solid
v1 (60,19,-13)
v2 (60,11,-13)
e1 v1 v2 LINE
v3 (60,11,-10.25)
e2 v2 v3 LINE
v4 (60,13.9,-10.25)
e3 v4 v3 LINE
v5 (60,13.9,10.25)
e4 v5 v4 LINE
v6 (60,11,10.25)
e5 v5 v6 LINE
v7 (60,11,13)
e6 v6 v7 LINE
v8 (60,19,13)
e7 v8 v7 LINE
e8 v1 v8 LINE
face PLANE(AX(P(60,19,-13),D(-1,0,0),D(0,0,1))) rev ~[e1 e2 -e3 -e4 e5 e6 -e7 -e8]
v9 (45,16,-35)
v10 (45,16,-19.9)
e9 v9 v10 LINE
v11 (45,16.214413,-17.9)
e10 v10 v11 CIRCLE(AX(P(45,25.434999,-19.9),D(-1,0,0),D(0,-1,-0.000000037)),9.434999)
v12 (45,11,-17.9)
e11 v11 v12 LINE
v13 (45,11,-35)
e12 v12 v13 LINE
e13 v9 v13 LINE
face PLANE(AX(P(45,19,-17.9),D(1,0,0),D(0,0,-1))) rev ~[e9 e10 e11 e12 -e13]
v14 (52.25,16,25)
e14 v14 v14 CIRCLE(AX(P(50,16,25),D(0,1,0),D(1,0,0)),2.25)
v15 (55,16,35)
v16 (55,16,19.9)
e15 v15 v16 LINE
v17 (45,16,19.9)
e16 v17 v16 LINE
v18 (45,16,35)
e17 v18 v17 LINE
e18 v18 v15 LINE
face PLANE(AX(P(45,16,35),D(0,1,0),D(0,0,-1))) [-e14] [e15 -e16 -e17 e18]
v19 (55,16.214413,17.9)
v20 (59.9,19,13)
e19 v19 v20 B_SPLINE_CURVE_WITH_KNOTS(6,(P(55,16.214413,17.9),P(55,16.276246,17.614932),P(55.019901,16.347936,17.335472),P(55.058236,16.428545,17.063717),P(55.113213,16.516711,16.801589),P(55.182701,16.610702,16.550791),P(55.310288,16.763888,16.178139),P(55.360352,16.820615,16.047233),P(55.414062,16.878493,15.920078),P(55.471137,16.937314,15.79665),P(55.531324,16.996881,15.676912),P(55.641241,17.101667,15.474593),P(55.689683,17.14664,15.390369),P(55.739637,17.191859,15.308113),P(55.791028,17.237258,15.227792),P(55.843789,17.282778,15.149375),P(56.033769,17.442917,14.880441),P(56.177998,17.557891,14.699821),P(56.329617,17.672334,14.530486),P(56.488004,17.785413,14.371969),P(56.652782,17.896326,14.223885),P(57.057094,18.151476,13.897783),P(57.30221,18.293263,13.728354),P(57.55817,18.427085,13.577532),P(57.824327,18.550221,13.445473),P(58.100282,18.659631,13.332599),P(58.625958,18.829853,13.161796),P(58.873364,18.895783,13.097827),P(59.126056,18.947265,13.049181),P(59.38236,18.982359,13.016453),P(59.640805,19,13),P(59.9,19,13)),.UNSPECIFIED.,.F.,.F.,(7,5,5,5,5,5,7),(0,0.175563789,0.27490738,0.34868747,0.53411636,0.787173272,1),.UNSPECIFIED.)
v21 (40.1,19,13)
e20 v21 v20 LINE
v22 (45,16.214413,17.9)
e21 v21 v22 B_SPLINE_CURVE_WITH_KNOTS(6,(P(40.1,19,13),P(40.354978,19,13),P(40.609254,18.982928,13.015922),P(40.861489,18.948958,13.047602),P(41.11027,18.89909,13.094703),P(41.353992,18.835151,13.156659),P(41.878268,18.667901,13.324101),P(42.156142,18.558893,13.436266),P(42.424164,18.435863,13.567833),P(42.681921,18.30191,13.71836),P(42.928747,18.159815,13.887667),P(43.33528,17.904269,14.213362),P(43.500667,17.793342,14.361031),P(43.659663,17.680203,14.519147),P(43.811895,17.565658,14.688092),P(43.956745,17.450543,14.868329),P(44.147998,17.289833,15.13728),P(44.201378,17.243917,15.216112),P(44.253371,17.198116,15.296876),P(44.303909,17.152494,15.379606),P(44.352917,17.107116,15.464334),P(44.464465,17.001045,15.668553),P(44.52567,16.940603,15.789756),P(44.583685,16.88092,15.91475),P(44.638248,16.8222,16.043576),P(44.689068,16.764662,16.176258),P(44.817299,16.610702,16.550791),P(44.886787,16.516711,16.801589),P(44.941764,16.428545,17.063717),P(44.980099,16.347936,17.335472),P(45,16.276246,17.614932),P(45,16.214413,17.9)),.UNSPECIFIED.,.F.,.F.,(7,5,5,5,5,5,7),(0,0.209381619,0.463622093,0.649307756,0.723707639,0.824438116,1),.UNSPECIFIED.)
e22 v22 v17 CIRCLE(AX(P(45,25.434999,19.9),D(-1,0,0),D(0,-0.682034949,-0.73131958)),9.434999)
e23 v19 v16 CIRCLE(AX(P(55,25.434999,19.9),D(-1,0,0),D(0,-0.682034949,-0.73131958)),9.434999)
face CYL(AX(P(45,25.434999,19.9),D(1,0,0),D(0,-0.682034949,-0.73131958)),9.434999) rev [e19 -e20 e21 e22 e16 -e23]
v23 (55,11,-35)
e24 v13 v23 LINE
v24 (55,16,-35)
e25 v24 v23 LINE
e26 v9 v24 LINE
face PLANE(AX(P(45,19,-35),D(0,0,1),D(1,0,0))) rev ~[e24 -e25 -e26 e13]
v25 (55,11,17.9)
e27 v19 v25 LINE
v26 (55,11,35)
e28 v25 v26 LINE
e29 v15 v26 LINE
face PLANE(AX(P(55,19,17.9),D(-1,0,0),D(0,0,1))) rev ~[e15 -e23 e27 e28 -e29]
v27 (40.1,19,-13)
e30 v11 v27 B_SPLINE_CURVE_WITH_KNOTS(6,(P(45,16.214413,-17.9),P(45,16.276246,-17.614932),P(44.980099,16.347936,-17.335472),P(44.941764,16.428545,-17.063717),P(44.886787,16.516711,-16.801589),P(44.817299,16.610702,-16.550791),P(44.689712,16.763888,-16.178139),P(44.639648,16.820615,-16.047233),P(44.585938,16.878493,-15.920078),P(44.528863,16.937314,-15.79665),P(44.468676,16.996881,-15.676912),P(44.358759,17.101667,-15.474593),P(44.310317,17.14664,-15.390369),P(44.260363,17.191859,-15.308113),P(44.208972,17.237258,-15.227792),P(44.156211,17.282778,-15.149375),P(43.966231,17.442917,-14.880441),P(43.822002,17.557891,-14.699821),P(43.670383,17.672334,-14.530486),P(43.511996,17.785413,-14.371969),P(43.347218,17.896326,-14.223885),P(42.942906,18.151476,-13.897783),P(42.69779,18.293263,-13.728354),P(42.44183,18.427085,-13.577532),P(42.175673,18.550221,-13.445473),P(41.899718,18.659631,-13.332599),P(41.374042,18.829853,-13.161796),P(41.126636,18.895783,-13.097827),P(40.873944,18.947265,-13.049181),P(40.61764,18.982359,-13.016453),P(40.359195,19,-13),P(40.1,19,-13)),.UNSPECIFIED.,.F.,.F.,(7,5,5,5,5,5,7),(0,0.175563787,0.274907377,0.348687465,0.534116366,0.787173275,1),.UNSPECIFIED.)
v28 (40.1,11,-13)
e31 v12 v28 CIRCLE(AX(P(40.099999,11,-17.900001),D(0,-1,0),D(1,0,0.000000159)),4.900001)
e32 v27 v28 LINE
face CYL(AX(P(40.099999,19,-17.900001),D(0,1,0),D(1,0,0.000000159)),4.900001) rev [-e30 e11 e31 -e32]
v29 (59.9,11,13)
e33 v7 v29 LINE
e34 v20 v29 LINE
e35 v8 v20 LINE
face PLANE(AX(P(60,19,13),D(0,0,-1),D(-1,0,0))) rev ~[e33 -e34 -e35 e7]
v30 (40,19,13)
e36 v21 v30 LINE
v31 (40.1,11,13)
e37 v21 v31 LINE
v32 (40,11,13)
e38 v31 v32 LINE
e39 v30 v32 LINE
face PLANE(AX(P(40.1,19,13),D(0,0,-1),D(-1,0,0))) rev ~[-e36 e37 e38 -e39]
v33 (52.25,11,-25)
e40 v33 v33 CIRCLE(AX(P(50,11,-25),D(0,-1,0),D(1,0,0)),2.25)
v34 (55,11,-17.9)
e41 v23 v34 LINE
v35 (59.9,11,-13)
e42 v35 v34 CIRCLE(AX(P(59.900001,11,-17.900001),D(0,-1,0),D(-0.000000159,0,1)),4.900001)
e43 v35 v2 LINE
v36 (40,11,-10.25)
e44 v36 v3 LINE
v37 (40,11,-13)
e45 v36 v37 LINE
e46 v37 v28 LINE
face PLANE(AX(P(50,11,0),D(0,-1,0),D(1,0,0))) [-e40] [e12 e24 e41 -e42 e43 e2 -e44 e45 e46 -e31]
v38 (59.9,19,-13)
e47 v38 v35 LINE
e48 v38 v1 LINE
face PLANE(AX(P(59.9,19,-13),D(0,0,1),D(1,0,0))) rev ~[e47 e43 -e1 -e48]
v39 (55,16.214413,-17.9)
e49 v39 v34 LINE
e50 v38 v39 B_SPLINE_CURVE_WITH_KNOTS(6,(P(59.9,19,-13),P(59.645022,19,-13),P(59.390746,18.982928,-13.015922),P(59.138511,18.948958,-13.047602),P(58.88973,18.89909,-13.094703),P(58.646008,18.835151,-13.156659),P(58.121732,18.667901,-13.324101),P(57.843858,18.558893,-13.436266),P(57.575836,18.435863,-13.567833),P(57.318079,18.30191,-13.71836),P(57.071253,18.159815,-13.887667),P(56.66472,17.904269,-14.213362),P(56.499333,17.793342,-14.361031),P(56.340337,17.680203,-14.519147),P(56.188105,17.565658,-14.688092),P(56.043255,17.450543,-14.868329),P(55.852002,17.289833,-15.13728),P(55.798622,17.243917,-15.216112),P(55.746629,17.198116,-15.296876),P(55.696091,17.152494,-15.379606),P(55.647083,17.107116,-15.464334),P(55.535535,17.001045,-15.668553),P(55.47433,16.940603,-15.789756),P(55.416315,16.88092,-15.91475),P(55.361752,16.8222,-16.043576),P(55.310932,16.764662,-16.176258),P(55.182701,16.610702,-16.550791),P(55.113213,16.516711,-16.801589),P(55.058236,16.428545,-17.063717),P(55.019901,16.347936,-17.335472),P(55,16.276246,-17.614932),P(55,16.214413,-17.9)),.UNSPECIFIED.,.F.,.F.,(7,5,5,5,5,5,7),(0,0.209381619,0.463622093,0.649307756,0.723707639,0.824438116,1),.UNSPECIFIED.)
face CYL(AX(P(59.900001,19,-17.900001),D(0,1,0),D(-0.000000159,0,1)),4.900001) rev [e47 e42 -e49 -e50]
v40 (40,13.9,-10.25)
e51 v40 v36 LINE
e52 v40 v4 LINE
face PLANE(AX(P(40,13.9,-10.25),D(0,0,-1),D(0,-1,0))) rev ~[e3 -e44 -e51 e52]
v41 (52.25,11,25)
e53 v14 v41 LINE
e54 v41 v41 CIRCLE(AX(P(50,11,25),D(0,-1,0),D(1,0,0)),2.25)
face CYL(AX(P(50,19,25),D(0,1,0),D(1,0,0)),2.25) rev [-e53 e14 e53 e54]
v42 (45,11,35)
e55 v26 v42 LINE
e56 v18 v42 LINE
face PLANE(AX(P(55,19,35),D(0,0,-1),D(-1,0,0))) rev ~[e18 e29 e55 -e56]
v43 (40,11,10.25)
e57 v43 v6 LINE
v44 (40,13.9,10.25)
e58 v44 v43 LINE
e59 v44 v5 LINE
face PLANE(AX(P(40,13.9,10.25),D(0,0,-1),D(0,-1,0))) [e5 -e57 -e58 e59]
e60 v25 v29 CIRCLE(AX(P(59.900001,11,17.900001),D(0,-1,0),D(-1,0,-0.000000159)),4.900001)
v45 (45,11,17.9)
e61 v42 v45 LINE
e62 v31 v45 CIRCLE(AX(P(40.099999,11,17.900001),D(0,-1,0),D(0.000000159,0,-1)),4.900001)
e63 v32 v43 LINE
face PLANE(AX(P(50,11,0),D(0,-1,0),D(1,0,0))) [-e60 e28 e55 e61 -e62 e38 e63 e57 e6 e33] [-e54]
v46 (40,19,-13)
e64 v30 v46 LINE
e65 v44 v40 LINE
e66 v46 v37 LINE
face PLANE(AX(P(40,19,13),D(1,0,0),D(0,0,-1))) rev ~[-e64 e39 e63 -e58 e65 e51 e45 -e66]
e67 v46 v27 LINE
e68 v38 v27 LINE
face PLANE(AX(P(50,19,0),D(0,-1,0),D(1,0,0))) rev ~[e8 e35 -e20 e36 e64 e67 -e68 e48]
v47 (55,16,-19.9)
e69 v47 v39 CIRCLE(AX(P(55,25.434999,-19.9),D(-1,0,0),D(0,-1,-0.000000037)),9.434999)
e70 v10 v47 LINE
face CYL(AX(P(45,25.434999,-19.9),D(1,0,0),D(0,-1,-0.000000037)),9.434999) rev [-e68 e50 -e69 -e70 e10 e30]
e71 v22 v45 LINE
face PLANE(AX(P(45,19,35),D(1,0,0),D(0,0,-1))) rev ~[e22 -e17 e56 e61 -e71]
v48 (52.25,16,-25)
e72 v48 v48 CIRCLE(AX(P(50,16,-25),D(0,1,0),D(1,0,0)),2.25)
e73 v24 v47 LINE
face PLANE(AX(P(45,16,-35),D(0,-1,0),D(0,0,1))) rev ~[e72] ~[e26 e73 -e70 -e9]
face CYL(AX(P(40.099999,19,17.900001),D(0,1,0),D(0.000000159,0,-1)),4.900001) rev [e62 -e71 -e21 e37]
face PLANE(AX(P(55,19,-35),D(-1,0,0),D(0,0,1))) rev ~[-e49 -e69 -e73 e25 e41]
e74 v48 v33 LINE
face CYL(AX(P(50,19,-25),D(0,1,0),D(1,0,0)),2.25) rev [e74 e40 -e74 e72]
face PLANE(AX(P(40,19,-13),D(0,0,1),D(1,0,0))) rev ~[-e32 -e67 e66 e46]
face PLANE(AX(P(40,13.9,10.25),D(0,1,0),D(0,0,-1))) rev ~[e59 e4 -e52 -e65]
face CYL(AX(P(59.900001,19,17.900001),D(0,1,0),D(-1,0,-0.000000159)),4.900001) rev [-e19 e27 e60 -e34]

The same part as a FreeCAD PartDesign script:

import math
import FreeCAD as App
import Part
import Sketcher
from FreeCAD import Vector
Q = App.Units.Quantity


def add_polygon(sketch, points):
    """Adds a closed chain of lines whose ends are joined by coincident constraints."""
    first, n = sketch.GeometryCount, len(points)
    for a, b in zip(points, points[1:] + points[:1]):
        sketch.addGeometry(Part.LineSegment(App.Vector(*a, 0), App.Vector(*b, 0)), False)
    for i in range(n):
        sketch.addConstraint(Sketcher.Constraint("Coincident", first + i, 2, first + (i + 1) % n, 1))

doc = App.newDocument("Part")
body = doc.addObject("PartDesign::Body", "Body")

# Sketch on XZ plane
sketch1 = body.newObject("Sketcher::SketchObject", "Sketch")
sketch1.AttachmentSupport = (doc.getObject("XZ_Plane"), [""])
sketch1.MapMode = "FlatFace"
sketch1.addGeometry([
    Part.LineSegment(Vector(40, -13, 0), Vector(40.1, -13, 0)),  # 0
    Part.ArcOfCircle(Part.Circle(Vector(40.099999, -17.900001, 0), Vector(0, 0, 1), 4.900001), math.radians(0.000009), math.radians(89.999991)),  # 1
    Part.LineSegment(Vector(45, -17.9, 0), Vector(45, -35, 0)),  # 2
    Part.LineSegment(Vector(45, -35, 0), Vector(55, -35, 0)),  # 3
    Part.LineSegment(Vector(55, -35, 0), Vector(55, -17.9, 0)),  # 4
    Part.ArcOfCircle(Part.Circle(Vector(59.900001, -17.900001, 0), Vector(0, 0, 1), 4.900001), math.radians(90.000009), math.radians(179.999991)),  # 5
    Part.LineSegment(Vector(59.9, -13, 0), Vector(60, -13, 0)),  # 6
    Part.LineSegment(Vector(60, -13, 0), Vector(60, 13, 0)),  # 7
    Part.LineSegment(Vector(60, 13, 0), Vector(59.9, 13, 0)),  # 8
    Part.ArcOfCircle(Part.Circle(Vector(59.900001, 17.900001, 0), Vector(0, 0, 1), 4.900001), math.radians(-179.999991), math.radians(-90.000009)),  # 9
    Part.LineSegment(Vector(55, 17.9, 0), Vector(55, 35, 0)),  # 10
    Part.LineSegment(Vector(55, 35, 0), Vector(45, 35, 0)),  # 11
    Part.LineSegment(Vector(45, 35, 0), Vector(45, 17.9, 0)),  # 12
    Part.ArcOfCircle(Part.Circle(Vector(40.099999, 17.900001, 0), Vector(0, 0, 1), 4.900001), math.radians(-89.999991), math.radians(-0.000009)),  # 13
    Part.LineSegment(Vector(40.1, 13, 0), Vector(40, 13, 0)),  # 14
    Part.LineSegment(Vector(40, 13, 0), Vector(40, -13, 0)),  # 15
    Part.Circle(Vector(50, -25, 0), Vector(0, 0, 1), 2.25),  # 16
    Part.Circle(Vector(50, 25, 0), Vector(0, 0, 1), 2.25),  # 17
], False)
sketch1.addConstraint([
    Sketcher.Constraint("Tangent", 0, 2, 1, 2),
    Sketcher.Constraint("Tangent", 1, 1, 2, 1),
    Sketcher.Constraint("Coincident", 2, 2, 3, 1),
    Sketcher.Constraint("Coincident", 3, 2, 4, 1),
    Sketcher.Constraint("Tangent", 4, 2, 5, 2),
    Sketcher.Constraint("Tangent", 5, 1, 6, 1),
    Sketcher.Constraint("Coincident", 6, 2, 7, 1),
    Sketcher.Constraint("Coincident", 7, 2, 8, 1),
    Sketcher.Constraint("Tangent", 8, 2, 9, 2),
    Sketcher.Constraint("Tangent", 9, 1, 10, 1),
    Sketcher.Constraint("Coincident", 10, 2, 11, 1),
    Sketcher.Constraint("Coincident", 11, 2, 12, 1),
    Sketcher.Constraint("Tangent", 12, 2, 13, 2),
    Sketcher.Constraint("Tangent", 13, 1, 14, 1),
    Sketcher.Constraint("Coincident", 14, 2, 15, 1),
    Sketcher.Constraint("Coincident", 15, 2, 0, 1),
    Sketcher.Constraint("Horizontal", 0),
    Sketcher.Constraint("Vertical", 2),
    Sketcher.Constraint("Horizontal", 3),
    Sketcher.Constraint("Vertical", 4),
    Sketcher.Constraint("Horizontal", 6),
    Sketcher.Constraint("Vertical", 7),
    Sketcher.Constraint("Horizontal", 8),
    Sketcher.Constraint("Vertical", 10),
    Sketcher.Constraint("Horizontal", 11),
    Sketcher.Constraint("Vertical", 12),
    Sketcher.Constraint("Horizontal", 14),
    Sketcher.Constraint("Vertical", 15),
    Sketcher.Constraint("Equal", 1, 5),
    Sketcher.Constraint("Equal", 5, 9),
    Sketcher.Constraint("Equal", 9, 13),
    Sketcher.Constraint("Equal", 16, 17),
    Sketcher.Constraint("Symmetric", 5, 3, 9, 3, -1),
    Sketcher.Constraint("Symmetric", 1, 3, 13, 3, -1),
    Sketcher.Constraint("Symmetric", 16, 3, 17, 3, -1),
    Sketcher.Constraint("Horizontal", 1, 3, 5, 3),
    Sketcher.Constraint("Equal", 0, 6),
    Sketcher.Constraint("Equal", 4, 10),
    Sketcher.Constraint("Diameter", 16, Q("4.5 mm")),
    Sketcher.Constraint("Radius", 1, Q("4.900001 mm")),
    Sketcher.Constraint("DistanceX", 3, 1, 3, 2, Q("10 mm")),
    Sketcher.Constraint("DistanceY", 7, 1, 7, 2, Q("26 mm")),
    Sketcher.Constraint("DistanceX", 0, 1, 0, 2, Q("0.1 mm")),
    Sketcher.Constraint("DistanceY", 2, 2, 2, 1, Q("17.1 mm")),
    Sketcher.Constraint("DistanceX", -1, 1, 16, 3, Q("50 mm")),
    Sketcher.Constraint("DistanceY", 16, 3, -1, 1, Q("25 mm")),
    Sketcher.Constraint("DistanceX", -1, 1, 1, 1, Q("45 mm")),
])
pad1 = body.newObject("PartDesign::Pad", "Pad")
pad1.Profile = sketch1
pad1.Length = 8

# Sketch on YZ plane
sketch2 = body.newObject("Sketcher::SketchObject", "Sketch001")
sketch2.AttachmentSupport = (doc.getObject("YZ_Plane"), [""])
sketch2.MapMode = "FlatFace"
sketch2.AttachmentOffset = App.Placement(Vector(0, 0, 40), App.Rotation())
add_polygon(sketch2, [(-8, 10.25), (-5.1, 10.25), (-5.1, -10.25), (-8, -10.25)])  # lines 0-3
sketch2.addConstraint([
    Sketcher.Constraint("Horizontal", 0),
    Sketcher.Constraint("Vertical", 1),
    Sketcher.Constraint("Horizontal", 2),
    Sketcher.Constraint("Vertical", 3),
    Sketcher.Constraint("DistanceX", 0, 1, 0, 2, Q("2.9 mm")),
    Sketcher.Constraint("DistanceY", 1, 2, 1, 1, Q("20.5 mm")),
    Sketcher.Constraint("DistanceX", 2, 2, -1, 1, Q("8 mm")),
    Sketcher.Constraint("DistanceY", -1, 1, 0, 2, Q("10.25 mm")),
])
pocket1 = body.newObject("PartDesign::Pocket", "Pocket")
pocket1.Profile = sketch2
pocket1.Length = 20
pocket1.Reversed = True

# Sketch on YZ plane
sketch3 = body.newObject("Sketcher::SketchObject", "Sketch002")
sketch3.AttachmentSupport = (doc.getObject("YZ_Plane"), [""])
sketch3.MapMode = "FlatFace"
sketch3.AttachmentOffset = App.Placement(Vector(0, 0, 45), App.Rotation())
sketch3.addGeometry([
    Part.LineSegment(Vector(-3, 19.9, 0), Vector(-3, 35, 0)),  # 0
    Part.LineSegment(Vector(-3, 35, 0), Vector(0, 35, 0)),  # 1
    Part.LineSegment(Vector(0, 35, 0), Vector(0, 13, 0)),  # 2
    Part.ArcOfCircle(Part.Circle(Vector(6.434999, 19.9, 0), Vector(0, 0, 1), 9.434999), math.radians(179.999998), math.radians(226.997133)),  # 3
    Part.LineSegment(Vector(0, -13, 0), Vector(0, -35, 0)),  # 4
    Part.LineSegment(Vector(0, -35, 0), Vector(-3, -35, 0)),  # 5
    Part.LineSegment(Vector(-3, -35, 0), Vector(-3, -19.9, 0)),  # 6
    Part.ArcOfCircle(Part.Circle(Vector(6.434999, -19.9, 0), Vector(0, 0, 1), 9.434999), math.radians(133.002867), math.radians(180.000002)),  # 7
], False)
sketch3.addConstraint([
    Sketcher.Constraint("Coincident", 0, 2, 1, 1),
    Sketcher.Constraint("Coincident", 1, 2, 2, 1),
    Sketcher.Constraint("Coincident", 2, 2, 3, 2),
    Sketcher.Constraint("Tangent", 3, 1, 0, 1),
    Sketcher.Constraint("Coincident", 4, 2, 5, 1),
    Sketcher.Constraint("Coincident", 5, 2, 6, 1),
    Sketcher.Constraint("Tangent", 6, 2, 7, 2),
    Sketcher.Constraint("Coincident", 7, 1, 4, 1),
    Sketcher.Constraint("Vertical", 0),
    Sketcher.Constraint("Horizontal", 1),
    Sketcher.Constraint("Vertical", 2),
    Sketcher.Constraint("Vertical", 4),
    Sketcher.Constraint("Horizontal", 5),
    Sketcher.Constraint("Vertical", 6),
    Sketcher.Constraint("Equal", 3, 7),
    Sketcher.Constraint("Symmetric", 1, 2, 4, 2, -1, 1),
    Sketcher.Constraint("Symmetric", 3, 3, 7, 3, -1),
    Sketcher.Constraint("PointOnObject", 1, 2, -2),
    Sketcher.Constraint("DistanceX", 1, 1, 1, 2, Q("3 mm")),
    Sketcher.Constraint("DistanceY", 2, 2, 2, 1, Q("22 mm")),
    Sketcher.Constraint("DistanceY", 0, 1, 0, 2, Q("15.1 mm")),
    Sketcher.Constraint("DistanceY", -1, 1, 0, 2, Q("35 mm")),
])
pocket2 = body.newObject("PartDesign::Pocket", "Pocket001")
pocket2.Profile = sketch3
pocket2.Type = "ThroughAll"
pocket2.Midplane = True
body2 = doc.addObject("PartDesign::Body", "Body001")
doc.recompute()

body.Placement = App.Placement(Vector(0, 19, 0), App.Rotation(Vector(0, 0, 1), 0))
boolean = body2.newObject("PartDesign::Boolean", "Boolean")
boolean.Type = "Fuse"
boolean.addObjects([body])

doc.recompute()
